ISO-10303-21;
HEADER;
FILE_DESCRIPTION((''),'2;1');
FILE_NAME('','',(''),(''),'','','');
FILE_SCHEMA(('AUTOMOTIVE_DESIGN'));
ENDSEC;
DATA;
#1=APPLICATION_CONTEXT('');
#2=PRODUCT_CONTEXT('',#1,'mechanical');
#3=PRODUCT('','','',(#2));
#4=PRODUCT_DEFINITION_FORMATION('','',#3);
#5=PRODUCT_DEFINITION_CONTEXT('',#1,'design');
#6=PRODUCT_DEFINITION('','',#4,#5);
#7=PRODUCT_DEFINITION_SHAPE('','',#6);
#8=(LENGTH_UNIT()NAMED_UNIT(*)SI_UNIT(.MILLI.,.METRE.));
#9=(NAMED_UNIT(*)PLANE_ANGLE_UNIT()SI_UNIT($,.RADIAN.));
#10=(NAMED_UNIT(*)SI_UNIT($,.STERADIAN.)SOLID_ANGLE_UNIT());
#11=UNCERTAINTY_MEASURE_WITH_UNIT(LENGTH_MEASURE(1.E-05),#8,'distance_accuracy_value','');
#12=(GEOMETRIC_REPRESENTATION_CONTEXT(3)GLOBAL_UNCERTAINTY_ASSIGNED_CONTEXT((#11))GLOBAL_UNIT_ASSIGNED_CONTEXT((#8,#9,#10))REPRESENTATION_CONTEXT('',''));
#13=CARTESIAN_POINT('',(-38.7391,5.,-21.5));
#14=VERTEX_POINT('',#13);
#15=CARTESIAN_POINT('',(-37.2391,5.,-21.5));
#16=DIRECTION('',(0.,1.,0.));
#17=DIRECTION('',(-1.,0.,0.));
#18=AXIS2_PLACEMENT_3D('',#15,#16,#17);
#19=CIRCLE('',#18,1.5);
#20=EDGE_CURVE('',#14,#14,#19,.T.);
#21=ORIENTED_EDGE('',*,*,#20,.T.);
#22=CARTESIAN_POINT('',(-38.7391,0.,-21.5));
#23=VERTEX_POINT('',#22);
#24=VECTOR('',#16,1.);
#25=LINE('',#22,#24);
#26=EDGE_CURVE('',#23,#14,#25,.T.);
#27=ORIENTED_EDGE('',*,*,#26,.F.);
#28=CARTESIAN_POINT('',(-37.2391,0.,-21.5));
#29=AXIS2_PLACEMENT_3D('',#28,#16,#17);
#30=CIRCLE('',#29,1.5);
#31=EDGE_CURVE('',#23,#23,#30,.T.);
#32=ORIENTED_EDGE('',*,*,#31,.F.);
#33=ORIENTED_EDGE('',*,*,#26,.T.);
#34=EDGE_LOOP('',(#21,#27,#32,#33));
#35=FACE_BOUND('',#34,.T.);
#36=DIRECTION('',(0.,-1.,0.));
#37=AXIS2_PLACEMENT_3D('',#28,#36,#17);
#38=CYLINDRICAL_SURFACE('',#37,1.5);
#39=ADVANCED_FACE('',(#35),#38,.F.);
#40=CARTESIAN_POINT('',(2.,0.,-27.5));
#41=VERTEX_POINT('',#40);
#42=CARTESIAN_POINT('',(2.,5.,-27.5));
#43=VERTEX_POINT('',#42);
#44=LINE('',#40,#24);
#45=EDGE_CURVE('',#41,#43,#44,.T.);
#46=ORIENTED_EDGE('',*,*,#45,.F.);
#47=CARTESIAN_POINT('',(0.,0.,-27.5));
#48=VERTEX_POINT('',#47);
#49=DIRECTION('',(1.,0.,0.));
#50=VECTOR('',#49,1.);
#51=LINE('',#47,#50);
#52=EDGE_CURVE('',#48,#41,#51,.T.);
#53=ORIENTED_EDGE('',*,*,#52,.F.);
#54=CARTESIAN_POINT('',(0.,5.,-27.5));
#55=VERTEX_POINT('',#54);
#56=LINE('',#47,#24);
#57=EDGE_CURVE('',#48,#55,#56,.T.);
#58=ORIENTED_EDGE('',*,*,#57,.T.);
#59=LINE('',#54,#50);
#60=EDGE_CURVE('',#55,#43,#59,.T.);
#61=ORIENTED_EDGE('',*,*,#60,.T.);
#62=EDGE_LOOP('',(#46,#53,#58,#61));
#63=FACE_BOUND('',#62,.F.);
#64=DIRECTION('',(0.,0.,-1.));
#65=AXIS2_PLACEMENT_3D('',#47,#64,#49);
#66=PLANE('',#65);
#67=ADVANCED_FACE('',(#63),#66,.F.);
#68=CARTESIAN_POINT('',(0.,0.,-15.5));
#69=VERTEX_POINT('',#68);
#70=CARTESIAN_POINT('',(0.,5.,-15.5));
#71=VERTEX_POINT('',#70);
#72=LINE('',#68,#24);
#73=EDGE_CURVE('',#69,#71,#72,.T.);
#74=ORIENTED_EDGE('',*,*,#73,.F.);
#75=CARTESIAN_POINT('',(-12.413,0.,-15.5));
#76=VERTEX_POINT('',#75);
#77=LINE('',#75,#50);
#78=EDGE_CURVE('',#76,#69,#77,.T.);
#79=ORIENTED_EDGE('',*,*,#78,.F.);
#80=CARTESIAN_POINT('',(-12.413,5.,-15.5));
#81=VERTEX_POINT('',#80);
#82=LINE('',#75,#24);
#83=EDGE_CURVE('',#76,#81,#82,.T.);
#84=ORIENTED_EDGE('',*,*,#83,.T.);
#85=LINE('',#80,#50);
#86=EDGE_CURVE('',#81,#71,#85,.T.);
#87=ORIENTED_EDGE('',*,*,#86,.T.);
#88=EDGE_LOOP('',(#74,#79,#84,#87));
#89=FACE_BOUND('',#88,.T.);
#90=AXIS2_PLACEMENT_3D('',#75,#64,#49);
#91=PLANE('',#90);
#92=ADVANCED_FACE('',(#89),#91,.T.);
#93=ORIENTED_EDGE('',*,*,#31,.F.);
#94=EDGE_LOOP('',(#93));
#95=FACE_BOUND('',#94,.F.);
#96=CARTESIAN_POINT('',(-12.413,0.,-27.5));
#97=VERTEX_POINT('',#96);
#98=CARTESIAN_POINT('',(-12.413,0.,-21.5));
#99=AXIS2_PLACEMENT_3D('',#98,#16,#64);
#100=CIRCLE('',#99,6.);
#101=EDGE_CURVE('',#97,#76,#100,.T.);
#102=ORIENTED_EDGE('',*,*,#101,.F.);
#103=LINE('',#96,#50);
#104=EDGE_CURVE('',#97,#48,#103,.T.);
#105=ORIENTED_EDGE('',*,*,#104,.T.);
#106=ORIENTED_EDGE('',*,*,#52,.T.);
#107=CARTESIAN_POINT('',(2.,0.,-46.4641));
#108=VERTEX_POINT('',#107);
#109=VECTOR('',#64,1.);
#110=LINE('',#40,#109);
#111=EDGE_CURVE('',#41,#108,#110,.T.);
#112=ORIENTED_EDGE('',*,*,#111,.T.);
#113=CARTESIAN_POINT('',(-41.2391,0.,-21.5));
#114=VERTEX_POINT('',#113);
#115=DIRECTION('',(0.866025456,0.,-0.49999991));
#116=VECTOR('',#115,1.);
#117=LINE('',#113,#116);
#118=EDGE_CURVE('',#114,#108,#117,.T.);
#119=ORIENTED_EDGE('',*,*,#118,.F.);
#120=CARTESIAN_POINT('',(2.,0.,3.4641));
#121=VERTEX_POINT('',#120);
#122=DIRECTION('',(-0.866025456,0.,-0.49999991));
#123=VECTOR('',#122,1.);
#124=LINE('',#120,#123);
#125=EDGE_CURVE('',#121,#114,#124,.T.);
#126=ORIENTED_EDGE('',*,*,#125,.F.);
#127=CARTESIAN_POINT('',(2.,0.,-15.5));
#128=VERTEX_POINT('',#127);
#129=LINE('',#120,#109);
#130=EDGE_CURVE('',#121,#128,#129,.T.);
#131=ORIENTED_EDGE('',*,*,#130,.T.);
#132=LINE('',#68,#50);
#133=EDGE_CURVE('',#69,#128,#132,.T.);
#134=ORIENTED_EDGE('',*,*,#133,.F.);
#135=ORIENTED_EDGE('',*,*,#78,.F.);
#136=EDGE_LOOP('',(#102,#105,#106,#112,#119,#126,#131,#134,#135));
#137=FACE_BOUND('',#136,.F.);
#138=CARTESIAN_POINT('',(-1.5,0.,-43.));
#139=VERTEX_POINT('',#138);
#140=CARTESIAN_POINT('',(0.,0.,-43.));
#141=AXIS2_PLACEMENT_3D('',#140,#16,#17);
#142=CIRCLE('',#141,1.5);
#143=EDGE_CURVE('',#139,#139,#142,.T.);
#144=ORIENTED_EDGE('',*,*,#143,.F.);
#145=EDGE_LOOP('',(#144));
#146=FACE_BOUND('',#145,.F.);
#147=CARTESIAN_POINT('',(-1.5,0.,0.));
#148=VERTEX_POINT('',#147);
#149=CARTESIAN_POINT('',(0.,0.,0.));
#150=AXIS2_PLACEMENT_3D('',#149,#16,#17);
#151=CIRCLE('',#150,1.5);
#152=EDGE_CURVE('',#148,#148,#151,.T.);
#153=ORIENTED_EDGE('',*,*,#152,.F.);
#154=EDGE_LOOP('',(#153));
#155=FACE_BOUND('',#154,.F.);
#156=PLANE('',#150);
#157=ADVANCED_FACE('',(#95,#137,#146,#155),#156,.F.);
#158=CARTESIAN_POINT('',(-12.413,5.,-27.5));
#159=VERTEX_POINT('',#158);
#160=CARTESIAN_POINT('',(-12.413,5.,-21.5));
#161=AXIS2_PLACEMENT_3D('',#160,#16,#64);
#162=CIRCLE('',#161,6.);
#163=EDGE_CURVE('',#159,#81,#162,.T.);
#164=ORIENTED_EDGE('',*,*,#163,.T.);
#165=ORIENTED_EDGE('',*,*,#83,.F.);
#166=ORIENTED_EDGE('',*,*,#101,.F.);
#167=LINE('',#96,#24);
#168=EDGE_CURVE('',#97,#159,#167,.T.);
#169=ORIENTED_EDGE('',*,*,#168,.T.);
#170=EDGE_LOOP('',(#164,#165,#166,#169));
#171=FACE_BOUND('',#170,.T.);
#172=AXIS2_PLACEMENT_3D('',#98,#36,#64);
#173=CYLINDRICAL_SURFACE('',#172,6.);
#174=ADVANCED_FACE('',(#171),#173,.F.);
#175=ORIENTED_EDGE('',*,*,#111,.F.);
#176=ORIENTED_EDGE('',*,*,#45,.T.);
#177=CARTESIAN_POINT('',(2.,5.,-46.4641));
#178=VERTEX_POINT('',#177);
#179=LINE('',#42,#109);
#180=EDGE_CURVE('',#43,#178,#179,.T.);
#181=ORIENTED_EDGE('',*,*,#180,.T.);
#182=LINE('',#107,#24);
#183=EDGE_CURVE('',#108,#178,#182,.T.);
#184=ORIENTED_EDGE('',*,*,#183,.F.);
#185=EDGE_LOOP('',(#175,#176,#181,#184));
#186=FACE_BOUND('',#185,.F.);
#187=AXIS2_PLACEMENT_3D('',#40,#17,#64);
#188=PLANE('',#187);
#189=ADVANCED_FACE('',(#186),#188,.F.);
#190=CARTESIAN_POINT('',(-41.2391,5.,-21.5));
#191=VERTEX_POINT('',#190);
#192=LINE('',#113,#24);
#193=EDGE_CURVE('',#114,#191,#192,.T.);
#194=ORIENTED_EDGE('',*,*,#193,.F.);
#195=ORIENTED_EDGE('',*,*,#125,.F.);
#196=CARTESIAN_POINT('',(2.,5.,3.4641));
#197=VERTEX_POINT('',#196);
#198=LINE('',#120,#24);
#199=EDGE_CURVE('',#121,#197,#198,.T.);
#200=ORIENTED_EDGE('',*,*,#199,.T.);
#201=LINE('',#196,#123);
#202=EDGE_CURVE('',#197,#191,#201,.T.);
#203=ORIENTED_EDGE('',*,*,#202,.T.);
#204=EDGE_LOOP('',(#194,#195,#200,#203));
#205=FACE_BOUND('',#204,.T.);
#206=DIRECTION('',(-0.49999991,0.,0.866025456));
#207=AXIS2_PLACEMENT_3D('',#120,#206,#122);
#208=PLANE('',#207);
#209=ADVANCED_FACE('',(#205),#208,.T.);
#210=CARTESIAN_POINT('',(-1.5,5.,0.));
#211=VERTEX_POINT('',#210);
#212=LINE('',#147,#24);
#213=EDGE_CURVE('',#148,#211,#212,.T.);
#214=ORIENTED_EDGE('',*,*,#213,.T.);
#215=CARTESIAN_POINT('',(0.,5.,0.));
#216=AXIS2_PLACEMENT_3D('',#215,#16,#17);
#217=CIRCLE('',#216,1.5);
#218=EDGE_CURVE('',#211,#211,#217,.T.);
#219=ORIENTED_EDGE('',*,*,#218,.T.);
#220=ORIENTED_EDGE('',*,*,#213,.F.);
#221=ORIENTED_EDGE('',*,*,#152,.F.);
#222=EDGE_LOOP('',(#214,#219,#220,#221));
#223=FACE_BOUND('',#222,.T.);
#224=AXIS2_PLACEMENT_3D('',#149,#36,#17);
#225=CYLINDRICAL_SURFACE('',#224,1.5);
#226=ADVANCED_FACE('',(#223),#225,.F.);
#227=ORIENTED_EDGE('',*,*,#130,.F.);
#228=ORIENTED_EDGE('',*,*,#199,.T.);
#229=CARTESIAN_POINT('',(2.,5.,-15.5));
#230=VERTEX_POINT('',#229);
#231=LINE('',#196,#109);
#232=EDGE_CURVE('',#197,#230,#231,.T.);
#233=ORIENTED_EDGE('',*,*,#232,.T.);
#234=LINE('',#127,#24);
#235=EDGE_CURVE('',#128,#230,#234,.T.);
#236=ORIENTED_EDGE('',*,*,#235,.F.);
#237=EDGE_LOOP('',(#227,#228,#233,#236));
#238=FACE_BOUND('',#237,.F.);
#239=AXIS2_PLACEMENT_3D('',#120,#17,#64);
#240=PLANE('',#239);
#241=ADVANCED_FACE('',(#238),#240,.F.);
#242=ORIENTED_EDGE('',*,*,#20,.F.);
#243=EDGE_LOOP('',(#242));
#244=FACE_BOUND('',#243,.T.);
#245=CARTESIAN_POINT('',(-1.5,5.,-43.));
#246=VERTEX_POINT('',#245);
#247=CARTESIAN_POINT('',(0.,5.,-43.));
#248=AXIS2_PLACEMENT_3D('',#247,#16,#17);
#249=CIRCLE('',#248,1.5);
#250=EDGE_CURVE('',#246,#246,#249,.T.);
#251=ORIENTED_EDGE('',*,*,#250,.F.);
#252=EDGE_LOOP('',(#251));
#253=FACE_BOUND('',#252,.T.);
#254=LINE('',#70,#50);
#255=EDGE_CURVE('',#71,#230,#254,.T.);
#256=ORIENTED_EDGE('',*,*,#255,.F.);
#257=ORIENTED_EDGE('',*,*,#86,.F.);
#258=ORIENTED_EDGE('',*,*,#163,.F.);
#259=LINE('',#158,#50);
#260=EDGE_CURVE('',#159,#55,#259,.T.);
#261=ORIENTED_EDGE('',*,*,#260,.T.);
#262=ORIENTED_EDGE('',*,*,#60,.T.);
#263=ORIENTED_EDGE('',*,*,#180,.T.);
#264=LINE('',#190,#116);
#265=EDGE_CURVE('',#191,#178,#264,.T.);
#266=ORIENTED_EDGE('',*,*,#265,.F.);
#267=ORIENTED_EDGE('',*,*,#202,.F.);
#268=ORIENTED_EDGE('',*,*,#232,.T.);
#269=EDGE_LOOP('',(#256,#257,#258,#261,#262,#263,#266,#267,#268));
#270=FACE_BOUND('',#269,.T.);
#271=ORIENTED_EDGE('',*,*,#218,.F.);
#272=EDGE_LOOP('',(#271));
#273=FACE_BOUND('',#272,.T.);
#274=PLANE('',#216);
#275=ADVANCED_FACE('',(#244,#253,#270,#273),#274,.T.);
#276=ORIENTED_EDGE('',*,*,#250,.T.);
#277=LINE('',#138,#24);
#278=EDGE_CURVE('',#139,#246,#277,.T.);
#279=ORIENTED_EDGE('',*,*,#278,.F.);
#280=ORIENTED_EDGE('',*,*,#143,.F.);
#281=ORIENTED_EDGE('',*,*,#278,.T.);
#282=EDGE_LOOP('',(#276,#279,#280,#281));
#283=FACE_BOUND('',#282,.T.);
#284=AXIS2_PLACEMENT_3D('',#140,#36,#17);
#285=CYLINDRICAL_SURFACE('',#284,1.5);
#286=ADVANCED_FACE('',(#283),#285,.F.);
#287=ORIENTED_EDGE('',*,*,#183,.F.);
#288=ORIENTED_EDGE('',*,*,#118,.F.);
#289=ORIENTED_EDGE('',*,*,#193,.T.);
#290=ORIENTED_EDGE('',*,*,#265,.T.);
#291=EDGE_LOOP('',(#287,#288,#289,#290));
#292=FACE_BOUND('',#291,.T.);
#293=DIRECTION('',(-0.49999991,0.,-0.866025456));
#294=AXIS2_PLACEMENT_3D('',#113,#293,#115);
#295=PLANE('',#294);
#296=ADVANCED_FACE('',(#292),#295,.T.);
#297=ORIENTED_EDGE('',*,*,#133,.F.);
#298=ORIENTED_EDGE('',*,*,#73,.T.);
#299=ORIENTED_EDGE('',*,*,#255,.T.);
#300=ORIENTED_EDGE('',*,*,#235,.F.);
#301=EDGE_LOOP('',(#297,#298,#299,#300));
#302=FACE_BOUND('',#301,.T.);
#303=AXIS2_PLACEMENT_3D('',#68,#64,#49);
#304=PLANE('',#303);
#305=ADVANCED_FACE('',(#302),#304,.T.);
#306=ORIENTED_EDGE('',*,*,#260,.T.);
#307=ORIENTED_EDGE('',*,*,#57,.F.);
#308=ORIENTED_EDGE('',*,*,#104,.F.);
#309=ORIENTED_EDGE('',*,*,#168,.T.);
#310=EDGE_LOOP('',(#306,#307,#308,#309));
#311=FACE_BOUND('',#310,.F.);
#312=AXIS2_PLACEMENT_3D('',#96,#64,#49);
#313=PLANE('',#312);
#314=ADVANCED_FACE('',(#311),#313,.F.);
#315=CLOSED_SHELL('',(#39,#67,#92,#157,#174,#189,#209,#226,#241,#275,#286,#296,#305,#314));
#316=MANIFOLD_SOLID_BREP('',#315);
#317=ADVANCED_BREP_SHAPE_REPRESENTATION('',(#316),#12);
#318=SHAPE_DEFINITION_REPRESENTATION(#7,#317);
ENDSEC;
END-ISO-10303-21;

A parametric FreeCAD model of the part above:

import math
import FreeCAD as App
import Part
import Sketcher
Q = App.Units.Quantity

doc = App.newDocument("Part")
body = doc.addObject("PartDesign::Body", "Body")

sketch1 = doc.addObject("Sketcher::SketchObject", "Sketch")
body.addObject(sketch1)
sketch1.AttachmentSupport = (doc.XZ_Plane, [""])
sketch1.MapMode = "FlatFace"
sketch1.addGeometry([
    Part.LineSegment(App.Vector(2, -15.5, 0), App.Vector(-12.4, -15.5, 0)),
    Part.ArcOfCircle(Part.Circle(App.Vector(-12.4, -21.5, 0), App.Vector(0, 0, 1), 6), math.radians(90), math.radians(270)),
    Part.LineSegment(App.Vector(-12.4, -27.5, 0), App.Vector(2, -27.5, 0)),
    Part.LineSegment(App.Vector(2, -27.5, 0), App.Vector(2, -46.5, 0)),
    Part.LineSegment(App.Vector(2, -46.5, 0), App.Vector(-41.2, -21.5, 0)),
    Part.LineSegment(App.Vector(-41.2, -21.5, 0), App.Vector(2, 3.5, 0)),
    Part.LineSegment(App.Vector(2, 3.5, 0), App.Vector(2, -15.5, 0)),
    Part.Circle(App.Vector(0, -43, 0), App.Vector(0, 0, 1), 1.5),
    Part.Circle(App.Vector(0, 0, 0), App.Vector(0, 0, 1), 1.5),
    Part.Circle(App.Vector(-37.2, -21.5, 0), App.Vector(0, 0, 1), 1.5),
], False)
sketch1.addConstraint([
    Sketcher.Constraint("Tangent", 0, 2, 1, 1),
    Sketcher.Constraint("Tangent", 1, 2, 2, 1),
    Sketcher.Constraint("Coincident", 2, 2, 3, 1),
    Sketcher.Constraint("Coincident", 3, 2, 4, 1),
    Sketcher.Constraint("Coincident", 4, 2, 5, 1),
    Sketcher.Constraint("Coincident", 5, 2, 6, 1),
    Sketcher.Constraint("Coincident", 6, 2, 0, 1),
    Sketcher.Constraint("Horizontal", 0),
    Sketcher.Constraint("Horizontal", 2),
    Sketcher.Constraint("Vertical", 3),
    Sketcher.Constraint("Vertical", 6),
    Sketcher.Constraint("Coincident", 8, 3, -1, 1),
    Sketcher.Constraint("Equal", 7, 8),
    Sketcher.Constraint("Equal", 8, 9),
    Sketcher.Constraint("PointOnObject", 7, 3, -2),
    Sketcher.Constraint("Horizontal", 1, 3, 9, 3),
    Sketcher.Constraint("Horizontal", 9, 3, 4, 2),
    Sketcher.Constraint("Vertical", 3, 2, 5, 2),
    Sketcher.Constraint("Equal", 3, 6),
    Sketcher.Constraint("Diameter", 7, 3.0),
    Sketcher.Constraint("DistanceY", 7, 3, -1, 1, 43.0),
    Sketcher.Constraint("Radius", 1, 6.0),
    Sketcher.Constraint("Angle", 4, Q("150 deg")),
    Sketcher.Constraint("DistanceX", -1, 1, 2, 2, 2.0),
    Sketcher.Constraint("DistanceX", 4, 2, 9, 3, 4.0),
    Sketcher.Constraint("DistanceY", 1, 3, -1, 1, 21.5),
    Sketcher.Constraint("DistanceX", 0, 2, 0, 1, 14.413),
    Sketcher.Constraint("DistanceY", 3, 2, 3, 1, 18.964),
])
pad1 = doc.addObject("PartDesign::Pad", "Pad")
body.addObject(pad1)
pad1.Profile = sketch1
pad1.Length = 5
pad1.Reversed = True

doc.recompute()
